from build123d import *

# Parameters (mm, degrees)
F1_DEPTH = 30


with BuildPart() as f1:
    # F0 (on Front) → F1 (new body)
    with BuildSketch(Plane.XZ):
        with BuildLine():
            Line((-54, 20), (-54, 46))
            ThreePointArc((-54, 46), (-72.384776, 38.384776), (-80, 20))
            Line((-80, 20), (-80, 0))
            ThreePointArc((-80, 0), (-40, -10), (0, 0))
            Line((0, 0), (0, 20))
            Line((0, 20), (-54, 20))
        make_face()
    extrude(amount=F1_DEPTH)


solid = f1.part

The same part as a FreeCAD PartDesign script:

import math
import FreeCAD as App
import Part
import Sketcher

V = App.Vector
Q = App.Units.Quantity

doc = App.newDocument("Part")
body = doc.addObject("PartDesign::Body", "Body")

sketch1 = body.newObject("Sketcher::SketchObject", "Sketch")
sketch1.AttachmentSupport = (doc.getObject("XZ_Plane"), [""])
sketch1.MapMode = "FlatFace"
sketch1.addGeometry([
    Part.LineSegment(V(-54, 20, 0), V(-54, 46, 0)),
    Part.ArcOfCircle(Part.Circle(V(-53.999999, 19.999999, 0), V(0, 0, 1), 26.000001), math.radians(90.000002), math.radians(179.999998)),
    Part.LineSegment(V(-80, 20, 0), V(-80, 0, 0)),
    Part.ArcOfCircle(Part.Circle(V(-40, 75, 0), V(0, 0, 1), 85), math.radians(-118.072487), math.radians(-61.927513)),
    Part.LineSegment(V(0, 0, 0), V(0, 20, 0)),
    Part.LineSegment(V(0, 20, 0), V(-54, 20, 0)),
], False)
sketch1.addConstraint([
    Sketcher.Constraint("Coincident", 0, 2, 1, 1),
    Sketcher.Constraint("Tangent", 1, 2, 2, 1),
    Sketcher.Constraint("Coincident", 2, 2, 3, 1),
    Sketcher.Constraint("Coincident", 3, 2, 4, 1),
    Sketcher.Constraint("Coincident", 4, 2, 5, 1),
    Sketcher.Constraint("Coincident", 5, 2, 0, 1),
    Sketcher.Constraint("Vertical", 0),
    Sketcher.Constraint("Vertical", 2),
    Sketcher.Constraint("Vertical", 4),
    Sketcher.Constraint("Horizontal", 5),
    Sketcher.Constraint("Coincident", 3, 2, -1, 1),
    Sketcher.Constraint("Coincident", 5, 2, 1, 3),
    Sketcher.Constraint("PointOnObject", 2, 2, -1),
    Sketcher.Constraint("Radius", 1, Q("26.000001 mm")),
    Sketcher.Constraint("Radius", 3, Q("85 mm")),
    Sketcher.Constraint("DistanceX", 5, 2, 5, 1, Q("54 mm")),
    Sketcher.Constraint("DistanceY", 2, 2, 2, 1, Q("20 mm")),
])
pad1 = body.newObject("PartDesign::Pad", "Pad")
pad1.Profile = sketch1
pad1.Length = 30

doc.recompute()
